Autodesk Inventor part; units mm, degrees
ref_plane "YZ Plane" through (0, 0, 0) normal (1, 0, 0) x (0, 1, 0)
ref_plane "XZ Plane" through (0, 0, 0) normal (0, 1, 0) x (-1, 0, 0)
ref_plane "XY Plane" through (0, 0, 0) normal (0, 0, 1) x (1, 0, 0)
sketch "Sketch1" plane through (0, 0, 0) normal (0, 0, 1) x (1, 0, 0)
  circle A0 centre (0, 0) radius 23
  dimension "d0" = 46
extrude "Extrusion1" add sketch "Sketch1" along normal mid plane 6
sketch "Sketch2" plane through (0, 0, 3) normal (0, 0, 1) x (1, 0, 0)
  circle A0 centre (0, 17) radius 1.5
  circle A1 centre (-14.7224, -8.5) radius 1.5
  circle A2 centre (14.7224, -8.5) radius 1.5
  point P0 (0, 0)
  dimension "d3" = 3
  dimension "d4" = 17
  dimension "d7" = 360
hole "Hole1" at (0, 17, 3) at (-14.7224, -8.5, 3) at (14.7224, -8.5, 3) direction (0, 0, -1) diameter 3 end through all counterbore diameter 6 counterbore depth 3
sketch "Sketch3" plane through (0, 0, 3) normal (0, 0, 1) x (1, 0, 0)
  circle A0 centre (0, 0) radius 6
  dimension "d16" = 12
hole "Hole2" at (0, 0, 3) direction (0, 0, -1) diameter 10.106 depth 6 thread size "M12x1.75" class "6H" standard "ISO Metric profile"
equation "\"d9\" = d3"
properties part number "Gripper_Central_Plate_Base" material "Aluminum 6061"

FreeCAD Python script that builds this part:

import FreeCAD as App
import Part
import Sketcher
from FreeCAD import Vector

doc = App.newDocument("Part")
body = doc.addObject("PartDesign::Body", "Body")

# Sketch on XY plane
sketch1 = body.newObject("Sketcher::SketchObject", "Sketch")
sketch1.AttachmentSupport = (doc.getObject("XY_Plane"), [""])
sketch1.MapMode = "FlatFace"
sketch1.addGeometry(Part.Circle(Vector(0, 0, 0), Vector(0, 0, 1), 23), False)
sketch1.addConstraint([
    Sketcher.Constraint("Coincident", 0, 3, -1, 1),
    Sketcher.Constraint("Diameter", 0, 46.0),
])
pad1 = body.newObject("PartDesign::Pad", "Pad")
pad1.Profile = sketch1
pad1.Length = 6
pad1.Midplane = True

# Sketch on XY plane
sketch2 = body.newObject("Sketcher::SketchObject", "Sketch001")
sketch2.AttachmentSupport = (doc.getObject("XY_Plane"), [""])
sketch2.MapMode = "FlatFace"
sketch2.AttachmentOffset = App.Placement(Vector(0, 0, 3), App.Rotation())
sketch2.addGeometry([
    Part.Circle(Vector(0, 17, 0), Vector(0, 0, 1), 1.5),
    Part.Circle(Vector(-14.7, -8.5, 0), Vector(0, 0, 1), 1.5),
    Part.Circle(Vector(14.7, -8.5, 0), Vector(0, 0, 1), 1.5),
], False)
sketch2.addConstraint([
    Sketcher.Constraint("Equal", 0, 1),
    Sketcher.Constraint("Equal", 1, 2),
    Sketcher.Constraint("Symmetric", 1, 3, 2, 3, -2),
    Sketcher.Constraint("PointOnObject", 0, 3, -2),
    Sketcher.Constraint("Diameter", 0, 3.0),
    Sketcher.Constraint("DistanceY", -1, 1, 0, 3, 17.0),
    Sketcher.Constraint("DistanceY", 1, 3, -1, 1, 8.5),
    Sketcher.Constraint("DistanceX", 1, 3, -1, 1, 14.7224),
])
doc.recompute()
hole = body.newObject("PartDesign::Hole", "Hole")
hole.Profile = sketch2
hole.ThreadType = "None"
hole.Diameter = 3
hole.DepthType = "ThroughAll"
hole.HoleCutType = "Counterbore"
hole.HoleCutDiameter = 6
hole.HoleCutDepth = 3

# Sketch on XY plane
sketch3 = body.newObject("Sketcher::SketchObject", "Sketch002")
sketch3.AttachmentSupport = (doc.getObject("XY_Plane"), [""])
sketch3.MapMode = "FlatFace"
sketch3.AttachmentOffset = App.Placement(Vector(0, 0, 3), App.Rotation())
sketch3.addGeometry(Part.Circle(Vector(0, 0, 0), Vector(0, 0, 1), 5), False)
sketch3.addConstraint([
    Sketcher.Constraint("Coincident", 0, 3, -1, 1),
    Sketcher.Constraint("Diameter", 0, 10.106),
])
doc.recompute()
hole2 = body.newObject("PartDesign::Hole", "Hole001")
hole2.Profile = sketch3
hole2.ThreadType = "None"
hole2.Diameter = 10.106
hole2.DepthType = "Dimension"
hole2.Depth = 6
hole2.DrillPoint = "Flat"

doc.recompute()
